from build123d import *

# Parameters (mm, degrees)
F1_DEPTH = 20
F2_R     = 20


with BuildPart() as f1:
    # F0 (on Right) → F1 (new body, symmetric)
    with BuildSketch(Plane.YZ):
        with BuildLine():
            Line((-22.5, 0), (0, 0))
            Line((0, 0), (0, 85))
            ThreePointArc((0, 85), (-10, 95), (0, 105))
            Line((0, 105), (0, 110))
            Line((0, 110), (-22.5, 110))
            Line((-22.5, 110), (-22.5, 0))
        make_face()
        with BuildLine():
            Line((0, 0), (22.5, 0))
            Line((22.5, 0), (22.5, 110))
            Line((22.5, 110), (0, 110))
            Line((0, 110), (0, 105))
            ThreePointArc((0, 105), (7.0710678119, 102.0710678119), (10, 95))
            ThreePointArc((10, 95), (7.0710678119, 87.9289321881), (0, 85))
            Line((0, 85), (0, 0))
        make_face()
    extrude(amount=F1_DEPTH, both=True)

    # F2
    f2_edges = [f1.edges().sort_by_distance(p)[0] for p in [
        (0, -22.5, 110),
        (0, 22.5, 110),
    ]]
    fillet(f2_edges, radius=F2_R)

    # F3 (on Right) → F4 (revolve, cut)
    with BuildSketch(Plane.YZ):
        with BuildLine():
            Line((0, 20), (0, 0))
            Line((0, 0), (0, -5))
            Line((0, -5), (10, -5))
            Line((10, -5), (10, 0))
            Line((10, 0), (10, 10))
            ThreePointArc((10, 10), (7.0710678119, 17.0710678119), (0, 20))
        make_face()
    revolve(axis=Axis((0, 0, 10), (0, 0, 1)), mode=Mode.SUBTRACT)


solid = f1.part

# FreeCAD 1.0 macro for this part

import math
import FreeCAD as App
import Part
import Sketcher

V = App.Vector


def edges_at(feature, points):
    """Names of the edges that pass closest to the given points."""
    edges = feature.Shape.Edges
    near = lambda p: min(range(len(edges)), key=lambda i: edges[i].distToShape(Part.Vertex(*p))[0])
    return sorted({f"Edge{near(p) + 1}" for p in points})


def add_polygon(sketch, points):
    """Adds a closed chain of lines whose ends are joined by coincident constraints."""
    first, n = sketch.GeometryCount, len(points)
    for a, b in zip(points, points[1:] + points[:1]):
        sketch.addGeometry(Part.LineSegment(App.Vector(*a, 0), App.Vector(*b, 0)), False)
    for i in range(n):
        sketch.addConstraint(Sketcher.Constraint("Coincident", first + i, 2, first + (i + 1) % n, 1))

doc = App.newDocument("Part")
body = doc.addObject("PartDesign::Body", "Body")

# Sketch on YZ plane
sketch1 = body.newObject("Sketcher::SketchObject", "Sketch")
sketch1.AttachmentSupport = (doc.getObject("YZ_Plane"), [""])
sketch1.MapMode = "FlatFace"
add_polygon(sketch1, [(-22, 0), (22, 0), (22, 110), (-22, 110)])  # lines 0-3
sketch1.addGeometry(Part.ArcOfCircle(Part.Circle(V(0, 95, 0), V(0, 0, 1), 10), math.radians(90), math.radians(270)), False)  # 4
sketch1.addGeometry(Part.ArcOfCircle(Part.Circle(V(0, 95, 0), V(0, 0, 1), 10), math.radians(0), math.radians(90)), False)  # 5
sketch1.addGeometry(Part.ArcOfCircle(Part.Circle(V(0, 95, 0), V(0, 0, 1), 10), math.radians(-90), math.radians(0)), False)  # 6
sketch1.addConstraint([
    Sketcher.Constraint("Tangent", 4, 1, 5, 2),
    Sketcher.Constraint("Tangent", 5, 1, 6, 2),
    Sketcher.Constraint("Tangent", 6, 1, 4, 2),
    Sketcher.Constraint("Horizontal", 0),
    Sketcher.Constraint("Vertical", 1),
    Sketcher.Constraint("Horizontal", 2),
    Sketcher.Constraint("Vertical", 3),
    Sketcher.Constraint("Symmetric", 0, 2, 3, 2, -1, 1),
    Sketcher.Constraint("PointOnObject", 4, 3, -2),
    Sketcher.Constraint("PointOnObject", 4, 1, -2),
    Sketcher.Constraint("PointOnObject", 6, 1, -2),
    Sketcher.Constraint("Horizontal", 6, 3, 5, 1),
    Sketcher.Constraint("Radius", 4, 10.0),
    Sketcher.Constraint("DistanceX", 0, 1, 0, 2, 45.0),
    Sketcher.Constraint("DistanceY", 1, 1, 1, 2, 110.0),
    Sketcher.Constraint("DistanceY", -1, 1, 4, 3, 95.0),
])
pad1 = body.newObject("PartDesign::Pad", "Pad")
pad1.Profile = sketch1
pad1.Length = 40
pad1.Midplane = True
doc.recompute()

fillet = body.newObject("PartDesign::Fillet", "Fillet")
fillet.Base = (pad1, edges_at(pad1, [(0, -22.5, 110), (0, 22.5, 110)]))
fillet.Radius = 20

# Sketch on YZ plane
sketch2 = body.newObject("Sketcher::SketchObject", "Sketch001")
sketch2.AttachmentSupport = (doc.getObject("YZ_Plane"), [""])
sketch2.MapMode = "FlatFace"
sketch2.addGeometry([
    Part.LineSegment(V(0, 20, 0), V(0, -5, 0)),
    Part.LineSegment(V(0, -5, 0), V(10, -5, 0)),
    Part.LineSegment(V(10, -5, 0), V(10, 10, 0)),
    Part.ArcOfCircle(Part.Circle(V(0, 10, 0), V(0, 0, 1), 10), math.radians(0), math.radians(90)),
], False)
sketch2.addConstraint([
    Sketcher.Constraint("Coincident", 0, 2, 1, 1),
    Sketcher.Constraint("Coincident", 1, 2, 2, 1),
    Sketcher.Constraint("Tangent", 2, 2, 3, 1),
    Sketcher.Constraint("Coincident", 3, 2, 0, 1),
    Sketcher.Constraint("Vertical", 0),
    Sketcher.Constraint("Horizontal", 1),
    Sketcher.Constraint("Vertical", 2),
    Sketcher.Constraint("PointOnObject", 3, 3, -2),
    Sketcher.Constraint("PointOnObject", 0, 2, -2),
    Sketcher.Constraint("Radius", 3, 10.0),
    Sketcher.Constraint("DistanceY", 0, 2, 0, 1, 25.0),
    Sketcher.Constraint("DistanceY", -1, 1, 3, 3, 10.0),
])
groove = body.newObject("PartDesign::Groove", "Groove")
groove.Profile = sketch2
groove.ReferenceAxis = (sketch2, ["V_Axis"])
groove.Angle = 360

doc.recompute()
